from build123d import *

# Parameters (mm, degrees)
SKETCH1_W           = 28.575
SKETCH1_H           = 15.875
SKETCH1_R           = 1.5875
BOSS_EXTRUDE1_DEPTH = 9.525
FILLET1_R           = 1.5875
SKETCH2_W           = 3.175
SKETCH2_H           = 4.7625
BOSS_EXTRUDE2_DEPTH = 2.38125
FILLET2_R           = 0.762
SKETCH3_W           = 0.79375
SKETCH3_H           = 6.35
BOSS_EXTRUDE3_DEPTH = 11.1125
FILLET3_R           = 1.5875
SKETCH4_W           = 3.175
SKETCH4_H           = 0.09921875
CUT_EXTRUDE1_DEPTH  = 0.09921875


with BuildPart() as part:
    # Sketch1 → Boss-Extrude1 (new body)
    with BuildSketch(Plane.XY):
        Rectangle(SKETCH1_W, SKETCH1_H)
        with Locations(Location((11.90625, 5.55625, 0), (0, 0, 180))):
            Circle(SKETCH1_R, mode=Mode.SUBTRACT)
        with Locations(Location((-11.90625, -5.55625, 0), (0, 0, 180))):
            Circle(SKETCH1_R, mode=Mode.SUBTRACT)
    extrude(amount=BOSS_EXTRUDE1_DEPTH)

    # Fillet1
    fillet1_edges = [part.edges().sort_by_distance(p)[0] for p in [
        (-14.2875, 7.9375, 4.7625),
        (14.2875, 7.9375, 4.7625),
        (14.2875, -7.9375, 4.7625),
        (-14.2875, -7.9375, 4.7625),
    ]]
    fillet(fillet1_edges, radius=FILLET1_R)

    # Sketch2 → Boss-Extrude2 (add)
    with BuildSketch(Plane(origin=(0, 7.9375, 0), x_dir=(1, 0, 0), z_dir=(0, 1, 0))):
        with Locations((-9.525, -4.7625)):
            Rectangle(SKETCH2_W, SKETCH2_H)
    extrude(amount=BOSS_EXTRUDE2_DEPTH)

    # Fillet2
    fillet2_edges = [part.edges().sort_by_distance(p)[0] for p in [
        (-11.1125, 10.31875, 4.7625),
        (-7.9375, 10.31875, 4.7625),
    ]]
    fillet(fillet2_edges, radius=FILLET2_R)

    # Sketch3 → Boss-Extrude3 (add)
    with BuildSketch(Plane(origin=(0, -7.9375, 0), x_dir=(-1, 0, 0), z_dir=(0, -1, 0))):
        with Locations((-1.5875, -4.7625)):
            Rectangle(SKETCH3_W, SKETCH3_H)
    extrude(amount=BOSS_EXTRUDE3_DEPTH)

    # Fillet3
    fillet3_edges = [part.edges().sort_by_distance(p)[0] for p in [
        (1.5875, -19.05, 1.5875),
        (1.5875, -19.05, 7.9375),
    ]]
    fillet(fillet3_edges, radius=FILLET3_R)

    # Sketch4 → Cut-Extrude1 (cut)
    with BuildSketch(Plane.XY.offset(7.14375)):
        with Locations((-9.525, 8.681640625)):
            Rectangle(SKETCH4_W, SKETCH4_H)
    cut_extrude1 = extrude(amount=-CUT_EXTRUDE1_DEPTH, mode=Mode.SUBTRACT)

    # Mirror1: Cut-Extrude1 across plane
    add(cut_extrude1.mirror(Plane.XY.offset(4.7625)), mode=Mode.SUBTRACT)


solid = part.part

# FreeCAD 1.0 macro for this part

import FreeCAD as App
import Part
import Sketcher
Q = App.Units.Quantity


def edges_at(feature, points):
    """Names of the edges that pass closest to the given points."""
    edges = feature.Shape.Edges
    near = lambda p: min(range(len(edges)), key=lambda i: edges[i].distToShape(Part.Vertex(*p))[0])
    return sorted({f"Edge{near(p) + 1}" for p in points})

doc = App.newDocument("Part")
body = doc.addObject("PartDesign::Body", "Body")

sketch1 = doc.addObject("Sketcher::SketchObject", "Sketch")
body.addObject(sketch1)
sketch1.AttachmentSupport = (doc.XY_Plane, [""])
sketch1.MapMode = "FlatFace"
sketch1.addGeometry([
    Part.LineSegment(App.Vector(-14.3, 7.9, 0), App.Vector(-14.3, -7.9, 0)),
    Part.LineSegment(App.Vector(-14.3, -7.9, 0), App.Vector(14.3, -7.9, 0)),
    Part.LineSegment(App.Vector(14.3, -7.9, 0), App.Vector(14.3, 7.9, 0)),
    Part.LineSegment(App.Vector(14.3, 7.9, 0), App.Vector(-14.3, 7.9, 0)),
    Part.Circle(App.Vector(-11.9, -5.6, 0), App.Vector(0, 0, 1), 1.6),
    Part.Circle(App.Vector(11.9, 5.6, 0), App.Vector(0, 0, 1), 1.6),
], False)
sketch1.addConstraint([
    Sketcher.Constraint("Coincident", 0, 2, 1, 1),
    Sketcher.Constraint("Coincident", 1, 2, 2, 1),
    Sketcher.Constraint("Coincident", 2, 2, 3, 1),
    Sketcher.Constraint("Coincident", 3, 2, 0, 1),
    Sketcher.Constraint("Vertical", 0),
    Sketcher.Constraint("Horizontal", 1),
    Sketcher.Constraint("Vertical", 2),
    Sketcher.Constraint("Horizontal", 3),
    Sketcher.Constraint("Equal", 4, 5),
    Sketcher.Constraint("Symmetric", 4, 3, 5, 3, -1, 1),
    Sketcher.Constraint("Symmetric", 0, 2, 2, 2, -1, 1),
    Sketcher.Constraint("Diameter", 4, Q("0.125 in")),
    Sketcher.Constraint("DistanceX", 1, 1, 1, 2, Q("1.125 in")),
    Sketcher.Constraint("DistanceY", 0, 2, 0, 1, Q("0.625 in")),
    Sketcher.Constraint("DistanceX", 4, 3, -1, 1, Q("0.46875 in")),
    Sketcher.Constraint("DistanceY", 4, 3, -1, 1, Q("0.21875 in")),
])
pad1 = doc.addObject("PartDesign::Pad", "Pad")
body.addObject(pad1)
pad1.Profile = sketch1
pad1.Length = Q("0.375 in")
doc.recompute()

fillet = doc.addObject("PartDesign::Fillet", "Fillet")
body.addObject(fillet)
fillet.Base = (pad1, edges_at(pad1, [
    (-14.287, 7.938, 4.763),
    (14.287, 7.938, 4.763),
    (14.287, -7.938, 4.763),
    (-14.287, -7.938, 4.763),
]))
fillet.Radius = Q("0.0625 in")

sketch2 = doc.addObject("Sketcher::SketchObject", "Sketch001")
body.addObject(sketch2)
sketch2.AttachmentSupport = (doc.XZ_Plane, [""])
sketch2.MapMode = "FlatFace"
sketch2.AttachmentOffset = App.Placement(App.Vector(0, 0, -0.3125 * 25.4), App.Rotation())
sketch2.addGeometry([
    Part.LineSegment(App.Vector(-11.1, 2.4, 0), App.Vector(-11.1, 7.1, 0)),
    Part.LineSegment(App.Vector(-11.1, 7.1, 0), App.Vector(-7.9, 7.1, 0)),
    Part.LineSegment(App.Vector(-7.9, 7.1, 0), App.Vector(-7.9, 2.4, 0)),
    Part.LineSegment(App.Vector(-7.9, 2.4, 0), App.Vector(-11.1, 2.4, 0)),
], False)
sketch2.addConstraint([
    Sketcher.Constraint("Coincident", 0, 2, 1, 1),
    Sketcher.Constraint("Coincident", 1, 2, 2, 1),
    Sketcher.Constraint("Coincident", 2, 2, 3, 1),
    Sketcher.Constraint("Coincident", 3, 2, 0, 1),
    Sketcher.Constraint("Vertical", 0),
    Sketcher.Constraint("Horizontal", 1),
    Sketcher.Constraint("Vertical", 2),
    Sketcher.Constraint("Horizontal", 3),
    Sketcher.Constraint("DistanceX", 1, 1, 1, 2, Q("0.125 in")),
    Sketcher.Constraint("DistanceY", 0, 1, 0, 2, Q("0.1875 in")),
    Sketcher.Constraint("DistanceX", 0, 2, -1, 1, Q("0.4375 in")),
    Sketcher.Constraint("DistanceY", -1, 1, 0, 2, Q("0.28125 in")),
])
pad2 = doc.addObject("PartDesign::Pad", "Pad001")
body.addObject(pad2)
pad2.Profile = sketch2
pad2.Length = Q("0.09375 in")
pad2.Reversed = True
doc.recompute()

fillet2 = doc.addObject("PartDesign::Fillet", "Fillet001")
body.addObject(fillet2)
fillet2.Base = (pad2, edges_at(pad2, [(-11.113, 10.319, 4.763), (-7.938, 10.319, 4.763)]))
fillet2.Radius = Q("0.03 in")

sketch3 = doc.addObject("Sketcher::SketchObject", "Sketch002")
body.addObject(sketch3)
sketch3.AttachmentSupport = (doc.XZ_Plane, [""])
sketch3.MapMode = "FlatFace"
sketch3.AttachmentOffset = App.Placement(App.Vector(0, 0, 0.3125 * 25.4), App.Rotation())
sketch3.addGeometry([
    Part.LineSegment(App.Vector(2, 1.6, 0), App.Vector(2, 7.9, 0)),
    Part.LineSegment(App.Vector(2, 7.9, 0), App.Vector(1.2, 7.9, 0)),
    Part.LineSegment(App.Vector(1.2, 7.9, 0), App.Vector(1.2, 1.6, 0)),
    Part.LineSegment(App.Vector(1.2, 1.6, 0), App.Vector(2, 1.6, 0)),
], False)
sketch3.addConstraint([
    Sketcher.Constraint("Coincident", 0, 2, 1, 1),
    Sketcher.Constraint("Coincident", 1, 2, 2, 1),
    Sketcher.Constraint("Coincident", 2, 2, 3, 1),
    Sketcher.Constraint("Coincident", 3, 2, 0, 1),
    Sketcher.Constraint("Vertical", 0),
    Sketcher.Constraint("Horizontal", 1),
    Sketcher.Constraint("Vertical", 2),
    Sketcher.Constraint("Horizontal", 3),
    Sketcher.Constraint("DistanceY", 0, 1, 0, 2, Q("0.25 in")),
    Sketcher.Constraint("DistanceX", 1, 2, 1, 1, Q("0.03125 in")),
    Sketcher.Constraint("DistanceX", -1, 1, 0, 2, Q("0.078125 in")),
    Sketcher.Constraint("DistanceY", -1, 1, 0, 2, Q("0.3125 in")),
])
pad3 = doc.addObject("PartDesign::Pad", "Pad002")
body.addObject(pad3)
pad3.Profile = sketch3
pad3.Length = Q("0.4375 in")
doc.recompute()

fillet3 = doc.addObject("PartDesign::Fillet", "Fillet002")
body.addObject(fillet3)
fillet3.Base = (pad3, edges_at(pad3, [(1.587, -19.05, 1.587), (1.587, -19.05, 7.938)]))
fillet3.Radius = Q("0.0625 in")

sketch4 = doc.addObject("Sketcher::SketchObject", "Sketch003")
body.addObject(sketch4)
sketch4.AttachmentSupport = (doc.XY_Plane, [""])
sketch4.MapMode = "FlatFace"
sketch4.AttachmentOffset = App.Placement(App.Vector(0, 0, 0.28125 * 25.4), App.Rotation())
sketch4.addGeometry([
    Part.LineSegment(App.Vector(-11.11, 8.73, 0), App.Vector(-11.11, 8.63, 0)),
    Part.LineSegment(App.Vector(-11.11, 8.63, 0), App.Vector(-7.94, 8.63, 0)),
    Part.LineSegment(App.Vector(-7.94, 8.63, 0), App.Vector(-7.94, 8.73, 0)),
    Part.LineSegment(App.Vector(-7.94, 8.73, 0), App.Vector(-11.11, 8.73, 0)),
], False)
sketch4.addConstraint([
    Sketcher.Constraint("Coincident", 0, 2, 1, 1),
    Sketcher.Constraint("Coincident", 1, 2, 2, 1),
    Sketcher.Constraint("Coincident", 2, 2, 3, 1),
    Sketcher.Constraint("Coincident", 3, 2, 0, 1),
    Sketcher.Constraint("Vertical", 0),
    Sketcher.Constraint("Horizontal", 1),
    Sketcher.Constraint("Vertical", 2),
    Sketcher.Constraint("Horizontal", 3),
    Sketcher.Constraint("DistanceX", 1, 1, 1, 2, Q("0.125 in")),
    Sketcher.Constraint("DistanceX", 0, 2, -1, 1, Q("0.4375 in")),
    Sketcher.Constraint("DistanceY", -1, 1, 2, 2, Q("0.34375 in")),
    Sketcher.Constraint("DistanceY", 0, 2, 0, 1, Q("0.099219 mm")),
])
pocket1 = doc.addObject("PartDesign::Pocket", "Pocket")
body.addObject(pocket1)
pocket1.Profile = sketch4
pocket1.Length = 0.099219
doc.recompute()

datumplane = doc.addObject("PartDesign::Plane", "DatumPlane")
body.addObject(datumplane)
datumplane.AttachmentSupport = (doc.XY_Plane, [""])
datumplane.MapMode = "FlatFace"
datumplane.AttachmentOffset = App.Placement(App.Vector(0, 0, 0.1875 * 25.4), App.Rotation())
mirrored = doc.addObject("PartDesign::Mirrored", "Mirrored")
body.addObject(mirrored)
mirrored.Originals = [pocket1]
mirrored.MirrorPlane = (datumplane, [""])
body.Tip = mirrored

doc.recompute()
